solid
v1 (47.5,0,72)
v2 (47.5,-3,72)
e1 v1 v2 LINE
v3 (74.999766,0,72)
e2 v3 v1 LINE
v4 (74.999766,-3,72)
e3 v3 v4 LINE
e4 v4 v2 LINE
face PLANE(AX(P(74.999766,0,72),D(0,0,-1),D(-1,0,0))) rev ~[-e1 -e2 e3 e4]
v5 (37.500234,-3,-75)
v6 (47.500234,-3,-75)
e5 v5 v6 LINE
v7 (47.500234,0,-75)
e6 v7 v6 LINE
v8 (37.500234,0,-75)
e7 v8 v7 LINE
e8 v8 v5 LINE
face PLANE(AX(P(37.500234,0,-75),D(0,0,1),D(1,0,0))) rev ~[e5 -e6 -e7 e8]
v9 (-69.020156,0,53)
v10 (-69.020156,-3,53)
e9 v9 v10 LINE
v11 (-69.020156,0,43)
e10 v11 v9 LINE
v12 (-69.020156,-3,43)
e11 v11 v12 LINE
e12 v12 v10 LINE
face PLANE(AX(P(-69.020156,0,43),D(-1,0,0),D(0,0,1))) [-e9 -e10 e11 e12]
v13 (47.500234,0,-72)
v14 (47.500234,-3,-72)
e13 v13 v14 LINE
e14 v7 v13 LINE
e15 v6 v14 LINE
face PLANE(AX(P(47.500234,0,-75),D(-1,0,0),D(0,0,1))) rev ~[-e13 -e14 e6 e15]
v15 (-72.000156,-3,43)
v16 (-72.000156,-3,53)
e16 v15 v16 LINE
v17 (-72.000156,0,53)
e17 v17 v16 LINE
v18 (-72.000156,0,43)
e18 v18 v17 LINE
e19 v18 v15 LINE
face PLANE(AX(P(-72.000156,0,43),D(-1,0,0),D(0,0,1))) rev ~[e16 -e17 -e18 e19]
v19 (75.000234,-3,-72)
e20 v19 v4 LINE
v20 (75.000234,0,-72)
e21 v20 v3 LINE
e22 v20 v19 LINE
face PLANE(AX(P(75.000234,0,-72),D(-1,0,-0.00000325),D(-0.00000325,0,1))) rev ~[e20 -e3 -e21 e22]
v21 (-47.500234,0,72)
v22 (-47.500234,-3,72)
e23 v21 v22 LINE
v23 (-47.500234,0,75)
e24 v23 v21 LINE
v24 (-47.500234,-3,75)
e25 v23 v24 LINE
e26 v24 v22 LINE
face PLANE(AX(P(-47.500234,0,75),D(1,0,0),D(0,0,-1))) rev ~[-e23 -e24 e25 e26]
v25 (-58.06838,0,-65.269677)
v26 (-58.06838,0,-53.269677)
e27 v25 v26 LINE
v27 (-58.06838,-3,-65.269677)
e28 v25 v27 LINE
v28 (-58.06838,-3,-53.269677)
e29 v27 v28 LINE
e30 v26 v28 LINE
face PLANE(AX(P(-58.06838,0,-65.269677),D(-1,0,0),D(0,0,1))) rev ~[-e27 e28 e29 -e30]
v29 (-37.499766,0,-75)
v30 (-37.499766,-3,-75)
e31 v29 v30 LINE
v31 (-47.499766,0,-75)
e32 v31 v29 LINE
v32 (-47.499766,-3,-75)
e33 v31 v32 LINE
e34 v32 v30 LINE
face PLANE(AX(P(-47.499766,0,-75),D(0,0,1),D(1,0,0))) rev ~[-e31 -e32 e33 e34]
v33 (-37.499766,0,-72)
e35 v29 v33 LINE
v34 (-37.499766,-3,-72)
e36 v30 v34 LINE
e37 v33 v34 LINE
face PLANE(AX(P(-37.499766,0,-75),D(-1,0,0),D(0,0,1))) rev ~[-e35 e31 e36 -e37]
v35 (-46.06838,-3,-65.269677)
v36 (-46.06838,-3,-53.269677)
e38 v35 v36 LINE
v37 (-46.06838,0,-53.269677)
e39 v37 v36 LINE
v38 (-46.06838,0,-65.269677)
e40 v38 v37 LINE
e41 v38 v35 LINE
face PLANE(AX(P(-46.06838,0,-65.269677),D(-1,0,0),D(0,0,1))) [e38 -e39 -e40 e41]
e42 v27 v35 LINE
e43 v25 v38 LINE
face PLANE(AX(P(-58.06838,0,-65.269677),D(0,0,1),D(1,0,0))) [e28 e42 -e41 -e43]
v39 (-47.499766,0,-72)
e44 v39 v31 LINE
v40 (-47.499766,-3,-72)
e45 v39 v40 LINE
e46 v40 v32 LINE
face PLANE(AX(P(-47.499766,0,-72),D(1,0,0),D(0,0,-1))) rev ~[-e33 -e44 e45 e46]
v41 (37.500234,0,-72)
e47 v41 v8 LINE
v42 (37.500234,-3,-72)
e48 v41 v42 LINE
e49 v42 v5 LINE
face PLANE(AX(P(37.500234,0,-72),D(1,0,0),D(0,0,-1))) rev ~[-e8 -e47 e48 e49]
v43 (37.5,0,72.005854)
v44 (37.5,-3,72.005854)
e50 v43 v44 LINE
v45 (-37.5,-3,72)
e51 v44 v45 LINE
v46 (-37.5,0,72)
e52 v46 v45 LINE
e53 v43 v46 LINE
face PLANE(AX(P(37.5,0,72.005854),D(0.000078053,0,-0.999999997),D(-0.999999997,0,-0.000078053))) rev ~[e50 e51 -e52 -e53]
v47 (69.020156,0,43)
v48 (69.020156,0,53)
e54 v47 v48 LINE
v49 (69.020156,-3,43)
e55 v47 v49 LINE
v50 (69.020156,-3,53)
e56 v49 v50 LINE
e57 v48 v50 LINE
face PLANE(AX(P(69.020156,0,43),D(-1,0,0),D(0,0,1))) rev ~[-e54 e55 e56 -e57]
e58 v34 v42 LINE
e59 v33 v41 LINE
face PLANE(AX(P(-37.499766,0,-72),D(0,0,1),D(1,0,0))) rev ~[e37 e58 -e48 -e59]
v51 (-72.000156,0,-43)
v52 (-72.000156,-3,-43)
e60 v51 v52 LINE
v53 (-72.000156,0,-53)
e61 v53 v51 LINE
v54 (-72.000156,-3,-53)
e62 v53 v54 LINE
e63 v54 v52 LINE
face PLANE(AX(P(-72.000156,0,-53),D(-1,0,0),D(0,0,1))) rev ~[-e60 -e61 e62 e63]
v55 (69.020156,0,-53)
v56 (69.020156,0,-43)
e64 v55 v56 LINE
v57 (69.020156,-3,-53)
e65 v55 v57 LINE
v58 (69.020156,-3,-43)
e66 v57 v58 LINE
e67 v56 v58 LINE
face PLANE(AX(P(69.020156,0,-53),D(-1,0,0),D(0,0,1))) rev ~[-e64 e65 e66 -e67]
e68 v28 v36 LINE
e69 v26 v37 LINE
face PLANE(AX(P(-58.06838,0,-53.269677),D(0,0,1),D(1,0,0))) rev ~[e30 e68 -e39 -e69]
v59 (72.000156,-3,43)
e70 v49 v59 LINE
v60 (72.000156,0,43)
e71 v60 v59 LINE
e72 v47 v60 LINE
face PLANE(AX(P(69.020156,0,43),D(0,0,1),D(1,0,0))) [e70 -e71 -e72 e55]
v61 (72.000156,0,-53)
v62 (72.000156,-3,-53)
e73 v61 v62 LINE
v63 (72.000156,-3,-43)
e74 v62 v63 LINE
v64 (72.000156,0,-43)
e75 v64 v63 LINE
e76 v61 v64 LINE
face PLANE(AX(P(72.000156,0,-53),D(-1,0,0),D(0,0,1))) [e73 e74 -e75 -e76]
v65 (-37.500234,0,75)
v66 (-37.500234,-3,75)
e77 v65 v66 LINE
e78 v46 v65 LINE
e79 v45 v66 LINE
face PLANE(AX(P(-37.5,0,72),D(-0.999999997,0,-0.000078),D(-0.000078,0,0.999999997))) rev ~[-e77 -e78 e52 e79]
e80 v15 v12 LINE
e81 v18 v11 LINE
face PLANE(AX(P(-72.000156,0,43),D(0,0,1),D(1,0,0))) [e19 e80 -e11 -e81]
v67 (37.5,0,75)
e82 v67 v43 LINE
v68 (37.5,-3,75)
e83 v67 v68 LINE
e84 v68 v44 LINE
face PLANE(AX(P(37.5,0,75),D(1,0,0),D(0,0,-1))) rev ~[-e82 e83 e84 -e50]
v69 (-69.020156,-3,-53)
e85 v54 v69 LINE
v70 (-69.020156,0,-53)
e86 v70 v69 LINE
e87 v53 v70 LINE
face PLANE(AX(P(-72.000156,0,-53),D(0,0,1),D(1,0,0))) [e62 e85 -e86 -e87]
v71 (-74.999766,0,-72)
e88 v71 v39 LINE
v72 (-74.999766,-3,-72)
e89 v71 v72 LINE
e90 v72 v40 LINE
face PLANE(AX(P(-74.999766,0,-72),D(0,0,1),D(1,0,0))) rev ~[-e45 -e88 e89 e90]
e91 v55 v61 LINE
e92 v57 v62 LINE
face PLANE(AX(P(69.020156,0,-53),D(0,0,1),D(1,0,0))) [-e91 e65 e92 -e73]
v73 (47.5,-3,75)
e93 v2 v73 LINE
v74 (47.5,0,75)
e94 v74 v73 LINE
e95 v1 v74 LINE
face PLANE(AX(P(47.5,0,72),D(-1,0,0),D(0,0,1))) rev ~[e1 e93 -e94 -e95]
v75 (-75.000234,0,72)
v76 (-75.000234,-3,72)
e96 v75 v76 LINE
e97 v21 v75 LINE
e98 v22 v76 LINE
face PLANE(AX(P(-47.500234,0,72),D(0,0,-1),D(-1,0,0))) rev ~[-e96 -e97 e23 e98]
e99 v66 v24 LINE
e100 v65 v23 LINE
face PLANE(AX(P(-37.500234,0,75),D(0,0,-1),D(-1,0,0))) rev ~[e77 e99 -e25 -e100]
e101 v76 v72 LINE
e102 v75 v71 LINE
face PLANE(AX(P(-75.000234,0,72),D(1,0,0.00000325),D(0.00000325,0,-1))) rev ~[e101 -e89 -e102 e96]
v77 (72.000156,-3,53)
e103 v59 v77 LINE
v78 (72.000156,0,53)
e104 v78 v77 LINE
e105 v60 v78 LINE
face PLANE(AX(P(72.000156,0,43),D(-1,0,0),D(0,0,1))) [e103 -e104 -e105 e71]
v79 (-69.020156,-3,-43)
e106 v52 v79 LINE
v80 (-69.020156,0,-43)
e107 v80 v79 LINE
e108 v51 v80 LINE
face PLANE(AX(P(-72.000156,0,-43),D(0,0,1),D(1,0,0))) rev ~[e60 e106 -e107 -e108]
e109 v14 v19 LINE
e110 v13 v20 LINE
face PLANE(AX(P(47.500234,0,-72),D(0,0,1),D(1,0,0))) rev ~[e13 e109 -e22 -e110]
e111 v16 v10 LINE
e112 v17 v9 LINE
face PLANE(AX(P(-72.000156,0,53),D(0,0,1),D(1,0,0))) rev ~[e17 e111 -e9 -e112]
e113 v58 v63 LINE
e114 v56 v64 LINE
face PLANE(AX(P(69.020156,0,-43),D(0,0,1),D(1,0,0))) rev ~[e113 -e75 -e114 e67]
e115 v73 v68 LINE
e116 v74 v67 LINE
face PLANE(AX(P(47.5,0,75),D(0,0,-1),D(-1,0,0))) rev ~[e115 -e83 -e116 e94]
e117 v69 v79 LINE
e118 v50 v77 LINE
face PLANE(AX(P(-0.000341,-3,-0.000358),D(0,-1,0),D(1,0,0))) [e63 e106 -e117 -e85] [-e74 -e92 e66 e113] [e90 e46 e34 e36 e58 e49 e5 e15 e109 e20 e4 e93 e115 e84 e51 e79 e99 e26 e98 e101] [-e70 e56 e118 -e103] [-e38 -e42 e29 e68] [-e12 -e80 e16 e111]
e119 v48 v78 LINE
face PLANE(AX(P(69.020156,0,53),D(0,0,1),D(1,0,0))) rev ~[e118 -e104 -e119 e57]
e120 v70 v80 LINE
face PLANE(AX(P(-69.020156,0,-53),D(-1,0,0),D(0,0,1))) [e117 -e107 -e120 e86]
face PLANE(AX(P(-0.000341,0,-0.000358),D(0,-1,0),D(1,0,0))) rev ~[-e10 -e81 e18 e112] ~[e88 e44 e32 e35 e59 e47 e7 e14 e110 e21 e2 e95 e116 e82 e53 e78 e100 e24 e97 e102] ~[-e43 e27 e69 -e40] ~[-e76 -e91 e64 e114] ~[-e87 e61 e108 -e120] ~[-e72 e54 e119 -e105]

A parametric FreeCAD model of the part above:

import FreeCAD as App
import Part
import Sketcher

V = App.Vector

doc = App.newDocument("Part")
body = doc.addObject("PartDesign::Body", "Body")

# Sketch on XZ plane
sketch1 = body.newObject("Sketcher::SketchObject", "Sketch")
sketch1.AttachmentSupport = (doc.getObject("XZ_Plane"), [""])
sketch1.MapMode = "FlatFace"
sketch1.addGeometry(Part.LineSegment(V(-47.5, 72, 0), V(-75, 72, 0)), False)
sketch1.addGeometry(Part.LineSegment(V(-75, 72, 0), V(-75, -72, 0)), False)
sketch1.addGeometry(Part.LineSegment(V(-75, -72, 0), V(-47.5, -72, 0)), False)
sketch1.addGeometry(Part.LineSegment(V(-47.5, -72, 0), V(-47.5, -75, 0)), False)
sketch1.addGeometry(Part.LineSegment(V(-47.5, -75, 0), V(-37.5, -75, 0)), False)
sketch1.addGeometry(Part.LineSegment(V(-37.5, -75, 0), V(-37.5, -72, 0)), False)
sketch1.addGeometry(Part.LineSegment(V(-37.5, -72, 0), V(37.5, -72, 0)), False)
sketch1.addGeometry(Part.LineSegment(V(37.5, -72, 0), V(37.5, -75, 0)), False)
sketch1.addGeometry(Part.LineSegment(V(37.5, -75, 0), V(47.5, -75, 0)), False)
sketch1.addGeometry(Part.LineSegment(V(47.5, -75, 0), V(47.5, -72, 0)), False)
sketch1.addGeometry(Part.LineSegment(V(47.5, -72, 0), V(75, -72, 0)), False)
sketch1.addGeometry(Part.LineSegment(V(75, -72, 0), V(75, 72, 0)), False)
sketch1.addGeometry(Part.LineSegment(V(75, 72, 0), V(47.5, 72, 0)), False)
sketch1.addGeometry(Part.LineSegment(V(47.5, 72, 0), V(47.5, 75, 0)), False)
sketch1.addGeometry(Part.LineSegment(V(47.5, 75, 0), V(37.5, 75, 0)), False)
sketch1.addGeometry(Part.LineSegment(V(37.5, 75, 0), V(37.5, 72, 0)), False)
sketch1.addGeometry(Part.LineSegment(V(37.5, 72, 0), V(-37.5, 72, 0)), False)
sketch1.addGeometry(Part.LineSegment(V(-37.5, 72, 0), V(-37.5, 75, 0)), False)
sketch1.addGeometry(Part.LineSegment(V(-37.5, 75, 0), V(-47.5, 75, 0)), False)
sketch1.addGeometry(Part.LineSegment(V(-47.5, 75, 0), V(-47.5, 72, 0)), False)
sketch1.addGeometry(Part.LineSegment(V(-46.1, -65.3, 0), V(-58.1, -65.3, 0)), False)
sketch1.addGeometry(Part.LineSegment(V(-58.1, -65.3, 0), V(-58.1, -53.3, 0)), False)
sketch1.addGeometry(Part.LineSegment(V(-58.1, -53.3, 0), V(-46.1, -53.3, 0)), False)
sketch1.addGeometry(Part.LineSegment(V(-46.1, -53.3, 0), V(-46.1, -65.3, 0)), False)
sketch1.addGeometry(Part.LineSegment(V(-69, -53, 0), V(-72, -53, 0)), False)
sketch1.addGeometry(Part.LineSegment(V(-72, -53, 0), V(-72, -43, 0)), False)
sketch1.addGeometry(Part.LineSegment(V(-72, -43, 0), V(-69, -43, 0)), False)
sketch1.addGeometry(Part.LineSegment(V(-69, -43, 0), V(-69, -53, 0)), False)
sketch1.addGeometry(Part.LineSegment(V(72, -53, 0), V(69, -53, 0)), False)
sketch1.addGeometry(Part.LineSegment(V(69, -53, 0), V(69, -43, 0)), False)
sketch1.addGeometry(Part.LineSegment(V(69, -43, 0), V(72, -43, 0)), False)
sketch1.addGeometry(Part.LineSegment(V(72, -43, 0), V(72, -53, 0)), False)
sketch1.addGeometry(Part.LineSegment(V(-69, 43, 0), V(-72, 43, 0)), False)
sketch1.addGeometry(Part.LineSegment(V(-72, 43, 0), V(-72, 53, 0)), False)
sketch1.addGeometry(Part.LineSegment(V(-72, 53, 0), V(-69, 53, 0)), False)
sketch1.addGeometry(Part.LineSegment(V(-69, 53, 0), V(-69, 43, 0)), False)
sketch1.addGeometry(Part.LineSegment(V(72, 43, 0), V(69, 43, 0)), False)
sketch1.addGeometry(Part.LineSegment(V(69, 43, 0), V(69, 53, 0)), False)
sketch1.addGeometry(Part.LineSegment(V(69, 53, 0), V(72, 53, 0)), False)
sketch1.addGeometry(Part.LineSegment(V(72, 53, 0), V(72, 43, 0)), False)
sketch1.addConstraint(Sketcher.Constraint("Coincident", 0, 2, 1, 1))
sketch1.addConstraint(Sketcher.Constraint("Coincident", 1, 2, 2, 1))
sketch1.addConstraint(Sketcher.Constraint("Coincident", 2, 2, 3, 1))
sketch1.addConstraint(Sketcher.Constraint("Coincident", 3, 2, 4, 1))
sketch1.addConstraint(Sketcher.Constraint("Coincident", 4, 2, 5, 1))
sketch1.addConstraint(Sketcher.Constraint("Coincident", 5, 2, 6, 1))
sketch1.addConstraint(Sketcher.Constraint("Coincident", 6, 2, 7, 1))
sketch1.addConstraint(Sketcher.Constraint("Coincident", 7, 2, 8, 1))
sketch1.addConstraint(Sketcher.Constraint("Coincident", 8, 2, 9, 1))
sketch1.addConstraint(Sketcher.Constraint("Coincident", 9, 2, 10, 1))
sketch1.addConstraint(Sketcher.Constraint("Coincident", 10, 2, 11, 1))
sketch1.addConstraint(Sketcher.Constraint("Coincident", 11, 2, 12, 1))
sketch1.addConstraint(Sketcher.Constraint("Coincident", 12, 2, 13, 1))
sketch1.addConstraint(Sketcher.Constraint("Coincident", 13, 2, 14, 1))
sketch1.addConstraint(Sketcher.Constraint("Coincident", 14, 2, 15, 1))
sketch1.addConstraint(Sketcher.Constraint("Coincident", 15, 2, 16, 1))
sketch1.addConstraint(Sketcher.Constraint("Coincident", 16, 2, 17, 1))
sketch1.addConstraint(Sketcher.Constraint("Coincident", 17, 2, 18, 1))
sketch1.addConstraint(Sketcher.Constraint("Coincident", 18, 2, 19, 1))
sketch1.addConstraint(Sketcher.Constraint("Coincident", 19, 2, 0, 1))
sketch1.addConstraint(Sketcher.Constraint("Coincident", 20, 2, 21, 1))
sketch1.addConstraint(Sketcher.Constraint("Coincident", 21, 2, 22, 1))
sketch1.addConstraint(Sketcher.Constraint("Coincident", 22, 2, 23, 1))
sketch1.addConstraint(Sketcher.Constraint("Coincident", 23, 2, 20, 1))
sketch1.addConstraint(Sketcher.Constraint("Coincident", 24, 2, 25, 1))
sketch1.addConstraint(Sketcher.Constraint("Coincident", 25, 2, 26, 1))
sketch1.addConstraint(Sketcher.Constraint("Coincident", 26, 2, 27, 1))
sketch1.addConstraint(Sketcher.Constraint("Coincident", 27, 2, 24, 1))
sketch1.addConstraint(Sketcher.Constraint("Coincident", 28, 2, 29, 1))
sketch1.addConstraint(Sketcher.Constraint("Coincident", 29, 2, 30, 1))
sketch1.addConstraint(Sketcher.Constraint("Coincident", 30, 2, 31, 1))
sketch1.addConstraint(Sketcher.Constraint("Coincident", 31, 2, 28, 1))
sketch1.addConstraint(Sketcher.Constraint("Coincident", 32, 2, 33, 1))
sketch1.addConstraint(Sketcher.Constraint("Coincident", 33, 2, 34, 1))
sketch1.addConstraint(Sketcher.Constraint("Coincident", 34, 2, 35, 1))
sketch1.addConstraint(Sketcher.Constraint("Coincident", 35, 2, 32, 1))
sketch1.addConstraint(Sketcher.Constraint("Coincident", 36, 2, 37, 1))
sketch1.addConstraint(Sketcher.Constraint("Coincident", 37, 2, 38, 1))
sketch1.addConstraint(Sketcher.Constraint("Coincident", 38, 2, 39, 1))
sketch1.addConstraint(Sketcher.Constraint("Coincident", 39, 2, 36, 1))
sketch1.addConstraint(Sketcher.Constraint("Horizontal", 0))
sketch1.addConstraint(Sketcher.Constraint("Horizontal", 2))
sketch1.addConstraint(Sketcher.Constraint("Vertical", 3))
sketch1.addConstraint(Sketcher.Constraint("Horizontal", 4))
sketch1.addConstraint(Sketcher.Constraint("Vertical", 5))
sketch1.addConstraint(Sketcher.Constraint("Horizontal", 6))
sketch1.addConstraint(Sketcher.Constraint("Vertical", 7))
sketch1.addConstraint(Sketcher.Constraint("Horizontal", 8))
sketch1.addConstraint(Sketcher.Constraint("Vertical", 9))
sketch1.addConstraint(Sketcher.Constraint("Horizontal", 10))
sketch1.addConstraint(Sketcher.Constraint("Horizontal", 12))
sketch1.addConstraint(Sketcher.Constraint("Vertical", 13))
sketch1.addConstraint(Sketcher.Constraint("Horizontal", 14))
sketch1.addConstraint(Sketcher.Constraint("Vertical", 15))
sketch1.addConstraint(Sketcher.Constraint("Horizontal", 18))
sketch1.addConstraint(Sketcher.Constraint("Vertical", 19))
sketch1.addConstraint(Sketcher.Constraint("Horizontal", 20))
sketch1.addConstraint(Sketcher.Constraint("Vertical", 21))
sketch1.addConstraint(Sketcher.Constraint("Horizontal", 22))
sketch1.addConstraint(Sketcher.Constraint("Vertical", 23))
sketch1.addConstraint(Sketcher.Constraint("Horizontal", 24))
sketch1.addConstraint(Sketcher.Constraint("Vertical", 25))
sketch1.addConstraint(Sketcher.Constraint("Horizontal", 26))
sketch1.addConstraint(Sketcher.Constraint("Vertical", 27))
sketch1.addConstraint(Sketcher.Constraint("Horizontal", 28))
sketch1.addConstraint(Sketcher.Constraint("Vertical", 29))
sketch1.addConstraint(Sketcher.Constraint("Horizontal", 30))
sketch1.addConstraint(Sketcher.Constraint("Vertical", 31))
sketch1.addConstraint(Sketcher.Constraint("Horizontal", 32))
sketch1.addConstraint(Sketcher.Constraint("Vertical", 33))
sketch1.addConstraint(Sketcher.Constraint("Horizontal", 34))
sketch1.addConstraint(Sketcher.Constraint("Vertical", 35))
sketch1.addConstraint(Sketcher.Constraint("Horizontal", 36))
sketch1.addConstraint(Sketcher.Constraint("Vertical", 37))
sketch1.addConstraint(Sketcher.Constraint("Horizontal", 38))
sketch1.addConstraint(Sketcher.Constraint("Vertical", 39))
sketch1.addConstraint(Sketcher.Constraint("Symmetric", 0, 2, 10, 2, -1, 1))
sketch1.addConstraint(Sketcher.Constraint("Symmetric", 1, 2, 11, 2, -1, 1))
sketch1.addConstraint(Sketcher.Constraint("Symmetric", 7, 2, 17, 2, -1, 1))
sketch1.addConstraint(Sketcher.Constraint("Symmetric", 30, 2, 32, 2, -1, 1))
sketch1.addConstraint(Sketcher.Constraint("Symmetric", 28, 2, 34, 2, -1, 1))
sketch1.addConstraint(Sketcher.Constraint("Symmetric", 26, 2, 36, 2, -1, 1))
sketch1.addConstraint(Sketcher.Constraint("Symmetric", 24, 2, 38, 2, -1, 1))
sketch1.addConstraint(Sketcher.Constraint("Symmetric", 27, 2, 28, 2, -2))
sketch1.addConstraint(Sketcher.Constraint("Symmetric", 25, 2, 30, 2, -2))
sketch1.addConstraint(Sketcher.Constraint("Perpendicular", 16, 17))
sketch1.addConstraint(Sketcher.Constraint("Horizontal", 2, 2, 5, 2))
sketch1.addConstraint(Sketcher.Constraint("Horizontal", 4, 2, 7, 2))
sketch1.addConstraint(Sketcher.Constraint("Horizontal", 6, 2, 9, 2))
sketch1.addConstraint(Sketcher.Constraint("Horizontal", 12, 2, 16, 2))
sketch1.addConstraint(Sketcher.Constraint("Horizontal", 14, 2, 17, 2))
sketch1.addConstraint(Sketcher.Constraint("Equal", 0, 2))
sketch1.addConstraint(Sketcher.Constraint("Equal", 4, 8))
sketch1.addConstraint(Sketcher.Constraint("Equal", 2, 10))
sketch1.addConstraint(Sketcher.Constraint("Equal", 8, 14))
sketch1.addConstraint(Sketcher.Constraint("Equal", 22, 21))
sketch1.addConstraint(Sketcher.Constraint("Equal", 18, 25))
sketch1.addConstraint(Sketcher.Constraint("DistanceX", 4, 1, 4, 2, 10.0))
sketch1.addConstraint(Sketcher.Constraint("DistanceX", 6, 1, 6, 2, 75.0))
sketch1.addConstraint(Sketcher.Constraint("DistanceX", 20, 2, 20, 1, 12.0))
sketch1.addConstraint(Sketcher.Constraint("DistanceY", 3, 2, 3, 1, 3.0))
sketch1.addConstraint(Sketcher.Constraint("Distance", 1, 144.0))
sketch1.addConstraint(Sketcher.Constraint("Distance", 16, 75.0))
sketch1.addConstraint(Sketcher.Constraint("DistanceX", 0, 2, 0, 1, 27.5))
sketch1.addConstraint(Sketcher.Constraint("DistanceY", 24, 2, -1, 1, 53.0))
sketch1.addConstraint(Sketcher.Constraint("DistanceX", 24, 2, 24, 1, 2.98))
sketch1.addConstraint(Sketcher.Constraint("DistanceX", -1, 1, 12, 2, 47.5))
sketch1.addConstraint(Sketcher.Constraint("DistanceX", 12, 2, 12, 1, 27.499766))
sketch1.addConstraint(Sketcher.Constraint("DistanceX", 20, 2, -1, 1, 58.06838))
sketch1.addConstraint(Sketcher.Constraint("DistanceX", 1, 2, 24, 2, 2.99961))
sketch1.addConstraint(Sketcher.Constraint("DistanceY", 20, 2, -1, 1, 65.269677))
pad1 = body.newObject("PartDesign::Pad", "Pad")
pad1.Profile = sketch1
pad1.Length = 3

doc.recompute()
